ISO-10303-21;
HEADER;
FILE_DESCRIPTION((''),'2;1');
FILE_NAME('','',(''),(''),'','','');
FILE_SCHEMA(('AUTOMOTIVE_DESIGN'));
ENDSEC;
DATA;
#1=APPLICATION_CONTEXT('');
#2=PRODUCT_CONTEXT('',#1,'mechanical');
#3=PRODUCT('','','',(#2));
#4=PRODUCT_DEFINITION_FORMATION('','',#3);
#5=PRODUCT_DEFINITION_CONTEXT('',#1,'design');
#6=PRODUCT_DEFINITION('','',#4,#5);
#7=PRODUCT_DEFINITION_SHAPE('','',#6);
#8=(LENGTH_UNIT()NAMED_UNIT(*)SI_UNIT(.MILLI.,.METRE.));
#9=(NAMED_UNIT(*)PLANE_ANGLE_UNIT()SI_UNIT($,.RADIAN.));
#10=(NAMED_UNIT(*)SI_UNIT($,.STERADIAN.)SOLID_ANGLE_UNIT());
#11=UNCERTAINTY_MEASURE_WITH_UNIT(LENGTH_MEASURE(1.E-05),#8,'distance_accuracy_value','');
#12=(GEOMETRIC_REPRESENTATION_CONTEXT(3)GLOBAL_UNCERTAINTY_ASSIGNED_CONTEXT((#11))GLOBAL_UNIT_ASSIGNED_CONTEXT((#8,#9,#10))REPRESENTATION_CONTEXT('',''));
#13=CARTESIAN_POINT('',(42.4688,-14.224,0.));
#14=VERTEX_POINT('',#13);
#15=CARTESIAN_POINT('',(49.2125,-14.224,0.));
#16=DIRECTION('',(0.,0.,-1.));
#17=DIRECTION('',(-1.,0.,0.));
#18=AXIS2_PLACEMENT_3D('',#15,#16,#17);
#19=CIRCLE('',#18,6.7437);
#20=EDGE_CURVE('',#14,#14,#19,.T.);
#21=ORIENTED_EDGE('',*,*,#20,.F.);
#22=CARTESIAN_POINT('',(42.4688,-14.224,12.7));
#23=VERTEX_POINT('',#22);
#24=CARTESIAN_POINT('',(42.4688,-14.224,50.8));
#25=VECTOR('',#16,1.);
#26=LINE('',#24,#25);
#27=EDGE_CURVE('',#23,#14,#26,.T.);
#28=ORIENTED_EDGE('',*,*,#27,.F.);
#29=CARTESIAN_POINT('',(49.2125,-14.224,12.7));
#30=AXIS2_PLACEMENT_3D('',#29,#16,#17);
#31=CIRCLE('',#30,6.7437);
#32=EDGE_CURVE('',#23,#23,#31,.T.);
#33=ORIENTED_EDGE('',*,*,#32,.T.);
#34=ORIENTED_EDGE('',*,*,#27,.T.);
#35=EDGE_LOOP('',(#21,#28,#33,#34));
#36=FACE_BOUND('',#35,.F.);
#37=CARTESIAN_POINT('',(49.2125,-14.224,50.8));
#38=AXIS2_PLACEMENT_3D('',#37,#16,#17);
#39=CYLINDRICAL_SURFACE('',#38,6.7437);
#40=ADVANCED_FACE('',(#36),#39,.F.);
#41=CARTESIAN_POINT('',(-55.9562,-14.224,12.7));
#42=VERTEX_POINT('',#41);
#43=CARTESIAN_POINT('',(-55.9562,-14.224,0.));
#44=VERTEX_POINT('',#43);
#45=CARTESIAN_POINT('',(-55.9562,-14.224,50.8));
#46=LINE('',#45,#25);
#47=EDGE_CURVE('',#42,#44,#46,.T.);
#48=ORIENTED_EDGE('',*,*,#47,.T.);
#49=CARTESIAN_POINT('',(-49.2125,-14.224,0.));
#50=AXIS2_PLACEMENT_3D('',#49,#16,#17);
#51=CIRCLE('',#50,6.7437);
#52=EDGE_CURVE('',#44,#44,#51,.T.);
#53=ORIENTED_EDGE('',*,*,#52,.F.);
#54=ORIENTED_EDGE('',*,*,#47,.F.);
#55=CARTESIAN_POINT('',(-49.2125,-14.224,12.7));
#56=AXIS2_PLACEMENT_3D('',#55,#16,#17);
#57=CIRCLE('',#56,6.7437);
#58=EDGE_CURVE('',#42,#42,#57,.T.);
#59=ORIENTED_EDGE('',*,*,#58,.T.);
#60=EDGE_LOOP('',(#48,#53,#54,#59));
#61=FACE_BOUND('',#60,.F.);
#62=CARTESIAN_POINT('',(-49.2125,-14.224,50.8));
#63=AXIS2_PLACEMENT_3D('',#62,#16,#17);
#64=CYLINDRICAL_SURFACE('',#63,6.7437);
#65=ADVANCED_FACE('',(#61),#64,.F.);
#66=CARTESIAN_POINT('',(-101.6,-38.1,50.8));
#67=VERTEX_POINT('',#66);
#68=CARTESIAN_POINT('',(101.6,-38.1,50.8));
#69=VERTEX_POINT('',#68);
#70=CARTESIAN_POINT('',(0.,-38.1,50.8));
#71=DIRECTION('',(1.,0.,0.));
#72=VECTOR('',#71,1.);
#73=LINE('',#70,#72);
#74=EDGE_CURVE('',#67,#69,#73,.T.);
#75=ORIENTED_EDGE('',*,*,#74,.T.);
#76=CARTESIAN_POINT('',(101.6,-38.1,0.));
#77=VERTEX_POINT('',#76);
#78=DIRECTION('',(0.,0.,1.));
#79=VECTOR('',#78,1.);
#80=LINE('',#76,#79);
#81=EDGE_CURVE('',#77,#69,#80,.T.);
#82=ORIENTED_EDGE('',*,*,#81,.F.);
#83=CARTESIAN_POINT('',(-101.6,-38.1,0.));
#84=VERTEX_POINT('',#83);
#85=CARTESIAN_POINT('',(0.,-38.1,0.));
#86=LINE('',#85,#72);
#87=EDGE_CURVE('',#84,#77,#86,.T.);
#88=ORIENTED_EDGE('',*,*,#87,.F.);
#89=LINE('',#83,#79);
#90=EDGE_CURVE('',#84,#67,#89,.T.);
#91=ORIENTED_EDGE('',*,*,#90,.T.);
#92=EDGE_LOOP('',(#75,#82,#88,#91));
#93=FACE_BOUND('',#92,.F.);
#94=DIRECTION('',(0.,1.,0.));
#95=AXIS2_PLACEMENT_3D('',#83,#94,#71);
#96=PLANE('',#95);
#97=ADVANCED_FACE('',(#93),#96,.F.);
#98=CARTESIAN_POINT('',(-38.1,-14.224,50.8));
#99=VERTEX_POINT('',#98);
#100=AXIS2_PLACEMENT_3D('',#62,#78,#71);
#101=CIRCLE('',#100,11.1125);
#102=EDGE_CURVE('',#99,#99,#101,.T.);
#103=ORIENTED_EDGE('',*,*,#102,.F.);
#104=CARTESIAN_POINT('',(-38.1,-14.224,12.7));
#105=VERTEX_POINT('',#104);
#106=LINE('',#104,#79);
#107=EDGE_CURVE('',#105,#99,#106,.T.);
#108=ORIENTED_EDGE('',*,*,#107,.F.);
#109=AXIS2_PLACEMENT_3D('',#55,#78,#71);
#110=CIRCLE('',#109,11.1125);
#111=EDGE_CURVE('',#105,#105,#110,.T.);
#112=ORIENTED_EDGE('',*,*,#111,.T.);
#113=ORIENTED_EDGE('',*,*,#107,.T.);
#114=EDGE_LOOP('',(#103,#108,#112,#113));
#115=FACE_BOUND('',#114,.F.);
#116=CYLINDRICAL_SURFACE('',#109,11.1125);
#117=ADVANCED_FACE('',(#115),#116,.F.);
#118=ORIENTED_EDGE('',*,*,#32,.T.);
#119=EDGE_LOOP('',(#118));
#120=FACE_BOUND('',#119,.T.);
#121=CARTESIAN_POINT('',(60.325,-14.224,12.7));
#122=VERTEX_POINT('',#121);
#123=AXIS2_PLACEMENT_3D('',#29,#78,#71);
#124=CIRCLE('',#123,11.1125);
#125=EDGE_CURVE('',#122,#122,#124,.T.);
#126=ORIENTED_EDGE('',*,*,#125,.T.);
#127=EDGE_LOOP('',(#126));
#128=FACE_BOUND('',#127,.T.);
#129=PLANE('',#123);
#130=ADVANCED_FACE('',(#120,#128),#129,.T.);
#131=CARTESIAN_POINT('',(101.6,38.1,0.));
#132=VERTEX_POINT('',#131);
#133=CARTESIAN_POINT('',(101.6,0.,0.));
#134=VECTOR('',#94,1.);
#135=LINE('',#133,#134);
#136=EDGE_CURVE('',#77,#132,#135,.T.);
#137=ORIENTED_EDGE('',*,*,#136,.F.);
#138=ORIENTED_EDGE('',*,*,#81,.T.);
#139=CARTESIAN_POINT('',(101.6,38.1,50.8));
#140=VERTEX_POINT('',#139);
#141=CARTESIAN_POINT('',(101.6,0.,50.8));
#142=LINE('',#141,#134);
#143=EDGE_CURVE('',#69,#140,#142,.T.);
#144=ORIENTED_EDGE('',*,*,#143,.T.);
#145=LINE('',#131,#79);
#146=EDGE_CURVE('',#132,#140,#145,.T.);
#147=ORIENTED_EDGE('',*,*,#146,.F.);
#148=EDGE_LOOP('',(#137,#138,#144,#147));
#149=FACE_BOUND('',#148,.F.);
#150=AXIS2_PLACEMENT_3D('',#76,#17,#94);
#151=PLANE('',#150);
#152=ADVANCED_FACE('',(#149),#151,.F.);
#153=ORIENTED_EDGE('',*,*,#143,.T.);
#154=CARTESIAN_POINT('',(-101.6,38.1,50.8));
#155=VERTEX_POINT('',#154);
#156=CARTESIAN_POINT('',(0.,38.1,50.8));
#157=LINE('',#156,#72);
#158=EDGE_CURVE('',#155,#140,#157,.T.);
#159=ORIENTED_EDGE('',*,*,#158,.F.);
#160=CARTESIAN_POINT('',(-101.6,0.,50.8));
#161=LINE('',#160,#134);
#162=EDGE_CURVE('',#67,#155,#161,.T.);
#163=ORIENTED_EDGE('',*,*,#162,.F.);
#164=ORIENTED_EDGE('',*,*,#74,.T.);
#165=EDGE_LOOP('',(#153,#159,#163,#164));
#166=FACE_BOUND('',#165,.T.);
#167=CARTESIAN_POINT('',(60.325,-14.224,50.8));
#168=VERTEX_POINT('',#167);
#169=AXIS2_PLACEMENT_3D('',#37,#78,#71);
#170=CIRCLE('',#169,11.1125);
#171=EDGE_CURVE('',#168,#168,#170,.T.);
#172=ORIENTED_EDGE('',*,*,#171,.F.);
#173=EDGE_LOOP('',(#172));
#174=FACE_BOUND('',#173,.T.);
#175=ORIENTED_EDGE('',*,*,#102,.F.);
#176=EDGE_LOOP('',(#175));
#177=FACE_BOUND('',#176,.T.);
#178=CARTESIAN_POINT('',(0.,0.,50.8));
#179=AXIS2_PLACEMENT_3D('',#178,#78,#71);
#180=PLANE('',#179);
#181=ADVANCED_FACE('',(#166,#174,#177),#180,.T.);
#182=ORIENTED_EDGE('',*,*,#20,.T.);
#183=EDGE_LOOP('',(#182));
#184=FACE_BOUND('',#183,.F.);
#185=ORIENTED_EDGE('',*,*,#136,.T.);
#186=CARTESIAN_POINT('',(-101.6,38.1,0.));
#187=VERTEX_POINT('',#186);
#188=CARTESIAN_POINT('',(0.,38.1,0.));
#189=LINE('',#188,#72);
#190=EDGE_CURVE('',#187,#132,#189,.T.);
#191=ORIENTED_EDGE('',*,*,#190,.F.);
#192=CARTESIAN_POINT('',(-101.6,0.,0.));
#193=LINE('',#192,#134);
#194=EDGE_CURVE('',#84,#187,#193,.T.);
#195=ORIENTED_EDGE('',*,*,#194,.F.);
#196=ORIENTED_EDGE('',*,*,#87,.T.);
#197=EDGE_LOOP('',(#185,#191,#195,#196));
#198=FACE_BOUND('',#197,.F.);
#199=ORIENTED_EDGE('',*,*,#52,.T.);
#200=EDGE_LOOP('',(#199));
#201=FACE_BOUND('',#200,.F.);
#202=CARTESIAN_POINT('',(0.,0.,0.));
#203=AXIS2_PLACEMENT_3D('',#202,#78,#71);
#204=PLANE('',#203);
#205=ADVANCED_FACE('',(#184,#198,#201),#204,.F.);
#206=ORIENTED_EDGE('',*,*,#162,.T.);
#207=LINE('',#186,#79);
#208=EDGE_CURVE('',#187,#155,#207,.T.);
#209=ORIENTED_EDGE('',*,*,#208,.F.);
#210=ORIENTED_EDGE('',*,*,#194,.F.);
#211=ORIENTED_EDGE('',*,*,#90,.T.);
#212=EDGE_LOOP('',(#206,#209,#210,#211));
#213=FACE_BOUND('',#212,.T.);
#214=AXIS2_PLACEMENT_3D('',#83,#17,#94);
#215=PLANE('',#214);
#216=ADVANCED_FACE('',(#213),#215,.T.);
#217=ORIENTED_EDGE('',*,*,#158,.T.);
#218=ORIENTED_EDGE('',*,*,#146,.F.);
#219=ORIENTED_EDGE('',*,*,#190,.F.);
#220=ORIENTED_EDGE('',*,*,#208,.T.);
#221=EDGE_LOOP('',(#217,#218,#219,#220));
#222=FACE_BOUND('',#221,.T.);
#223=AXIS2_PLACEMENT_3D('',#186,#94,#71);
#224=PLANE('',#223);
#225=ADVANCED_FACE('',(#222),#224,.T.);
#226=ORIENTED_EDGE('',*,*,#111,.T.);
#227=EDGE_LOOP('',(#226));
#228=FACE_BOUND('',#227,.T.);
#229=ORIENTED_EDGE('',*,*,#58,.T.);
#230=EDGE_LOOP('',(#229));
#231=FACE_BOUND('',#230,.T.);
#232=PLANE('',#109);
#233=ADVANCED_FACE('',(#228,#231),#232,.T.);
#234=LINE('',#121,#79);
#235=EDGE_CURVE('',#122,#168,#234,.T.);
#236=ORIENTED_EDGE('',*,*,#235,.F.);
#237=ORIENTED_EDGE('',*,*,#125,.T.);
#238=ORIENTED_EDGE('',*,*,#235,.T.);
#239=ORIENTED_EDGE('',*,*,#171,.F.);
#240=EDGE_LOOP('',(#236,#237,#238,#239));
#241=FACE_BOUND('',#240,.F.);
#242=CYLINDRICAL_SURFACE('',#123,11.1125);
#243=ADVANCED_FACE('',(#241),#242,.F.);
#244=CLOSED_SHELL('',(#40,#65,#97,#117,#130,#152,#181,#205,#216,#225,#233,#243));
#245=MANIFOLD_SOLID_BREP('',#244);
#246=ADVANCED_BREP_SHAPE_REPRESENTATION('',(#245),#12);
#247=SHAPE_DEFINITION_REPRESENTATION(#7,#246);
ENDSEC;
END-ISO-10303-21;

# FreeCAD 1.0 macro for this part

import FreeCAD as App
import Part
import Sketcher
from FreeCAD import Vector
Q = App.Units.Quantity


def add_polygon(sketch, points):
    """Adds a closed chain of lines whose ends are joined by coincident constraints."""
    first, n = sketch.GeometryCount, len(points)
    for a, b in zip(points, points[1:] + points[:1]):
        sketch.addGeometry(Part.LineSegment(App.Vector(*a, 0), App.Vector(*b, 0)), False)
    for i in range(n):
        sketch.addConstraint(Sketcher.Constraint("Coincident", first + i, 2, first + (i + 1) % n, 1))

doc = App.newDocument("Part")
body = doc.addObject("PartDesign::Body", "Body")

sketch1 = doc.addObject("Sketcher::SketchObject", "Sketch")
body.addObject(sketch1)
sketch1.AttachmentSupport = (doc.XY_Plane, [""])
sketch1.MapMode = "FlatFace"
add_polygon(sketch1, [(-102, 38), (-102, -38), (102, -38), (102, 38)])
sketch1.addConstraint(Sketcher.Constraint("Vertical", 0))
sketch1.addConstraint(Sketcher.Constraint("Horizontal", 1))
sketch1.addConstraint(Sketcher.Constraint("Vertical", 2))
sketch1.addConstraint(Sketcher.Constraint("Horizontal", 3))
sketch1.addConstraint(Sketcher.Constraint("Symmetric", 0, 2, 2, 2, -1, 1))
sketch1.addConstraint(Sketcher.Constraint("DistanceX", 1, 1, 1, 2, Q("8 in")))
sketch1.addConstraint(Sketcher.Constraint("DistanceY", 0, 2, 0, 1, Q("3 in")))
pad1 = doc.addObject("PartDesign::Pad", "Pad")
body.addObject(pad1)
pad1.Profile = sketch1
pad1.Length = Q("2 in")

sketch2 = doc.addObject("Sketcher::SketchObject", "Sketch001")
body.addObject(sketch2)
sketch2.AttachmentSupport = (doc.XY_Plane, [""])
sketch2.MapMode = "FlatFace"
sketch2.AttachmentOffset = App.Placement(Vector(0, 0, 2 * 25.4), App.Rotation())
sketch2.addGeometry(Part.Circle(Vector(-49, -14, 0), Vector(0, 0, 1), 7), False)
sketch2.addGeometry(Part.Circle(Vector(49, -14, 0), Vector(0, 0, 1), 7), False)
sketch2.addConstraint(Sketcher.Constraint("Equal", 0, 1))
sketch2.addConstraint(Sketcher.Constraint("Symmetric", 0, 3, 1, 3, -2))
sketch2.addConstraint(Sketcher.Constraint("Diameter", 0, Q("0.531 in")))
sketch2.addConstraint(Sketcher.Constraint("DistanceY", 0, 3, -1, 1, Q("0.56 in")))
sketch2.addConstraint(Sketcher.Constraint("DistanceX", 0, 3, -1, 1, Q("1.9375 in")))
doc.recompute()
hole = doc.addObject("PartDesign::Hole", "Hole")
body.addObject(hole)
hole.Profile = sketch2
hole.ThreadType = "None"
hole.Diameter = Q("0.531 in")
hole.DepthType = "ThroughAll"
hole.HoleCutType = "Counterbore"
hole.HoleCutDiameter = Q("0.875 in")
hole.HoleCutDepth = Q("1.5 in")

doc.recompute()
